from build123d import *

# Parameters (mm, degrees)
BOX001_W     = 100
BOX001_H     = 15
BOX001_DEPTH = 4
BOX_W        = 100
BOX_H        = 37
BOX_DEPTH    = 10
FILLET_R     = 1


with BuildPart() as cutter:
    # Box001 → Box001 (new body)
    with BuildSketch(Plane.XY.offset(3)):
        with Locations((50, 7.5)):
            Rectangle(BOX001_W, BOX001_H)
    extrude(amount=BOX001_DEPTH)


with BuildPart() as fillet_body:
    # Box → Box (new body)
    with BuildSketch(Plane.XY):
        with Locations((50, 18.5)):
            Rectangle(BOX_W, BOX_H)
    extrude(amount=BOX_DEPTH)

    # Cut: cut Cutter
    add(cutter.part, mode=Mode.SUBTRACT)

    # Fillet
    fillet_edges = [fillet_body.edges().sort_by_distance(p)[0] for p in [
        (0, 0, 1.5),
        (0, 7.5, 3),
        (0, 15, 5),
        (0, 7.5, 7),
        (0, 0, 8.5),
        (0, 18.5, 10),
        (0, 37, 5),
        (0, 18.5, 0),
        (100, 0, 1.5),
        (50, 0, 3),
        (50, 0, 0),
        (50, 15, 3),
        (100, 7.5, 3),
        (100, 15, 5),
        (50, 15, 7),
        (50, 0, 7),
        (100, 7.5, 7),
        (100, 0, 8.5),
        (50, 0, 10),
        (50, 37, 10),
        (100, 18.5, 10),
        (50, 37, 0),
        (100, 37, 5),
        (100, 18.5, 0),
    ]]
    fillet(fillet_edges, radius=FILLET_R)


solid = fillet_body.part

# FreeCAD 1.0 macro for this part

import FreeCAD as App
import Part
import Sketcher

V = App.Vector


def add_polygon(sketch, points):
    """Adds a closed chain of lines whose ends are joined by coincident constraints."""
    first, n = sketch.GeometryCount, len(points)
    for a, b in zip(points, points[1:] + points[:1]):
        sketch.addGeometry(Part.LineSegment(App.Vector(*a, 0), App.Vector(*b, 0)), False)
    for i in range(n):
        sketch.addConstraint(Sketcher.Constraint("Coincident", first + i, 2, first + (i + 1) % n, 1))

doc = App.newDocument("Part")
params = doc.addObject("Spreadsheet::Sheet", "Params")
for row, (alias, value) in enumerate([
    ("sketch1_width", "100 mm"),
    ("sketch1_height", "15 mm"),
    ("pad1_length", "4 mm"),
    ("sketch2_width", "100 mm"),
    ("sketch2_height", "37 mm"),
    ("pad2_length", "10 mm"),
    ("fillet_radius", "1 mm"),
], start=1):
    params.set(f"A{row}", alias)
    params.set(f"B{row}", "=" + value)
    params.setAlias(f"B{row}", alias)

body = doc.addObject("PartDesign::Body", "Body")

# Sketch on XY plane
sketch1 = body.newObject("Sketcher::SketchObject", "Sketch")
sketch1.AttachmentSupport = (doc.getObject("XY_Plane"), [""])
sketch1.MapMode = "FlatFace"
sketch1.AttachmentOffset = App.Placement(V(0, 0, 3), App.Rotation())
add_polygon(sketch1, [(0, 15), (0, 0), (100, 0), (100, 15)])  # lines 0-3
sketch1.addConstraint([
    Sketcher.Constraint("Vertical", 0),
    Sketcher.Constraint("Horizontal", 1),
    Sketcher.Constraint("Vertical", 2),
    Sketcher.Constraint("Horizontal", 3),
    Sketcher.Constraint("Coincident", 0, 2, -1, 1),
    Sketcher.Constraint("DistanceX", 1, 1, 1, 2, 100.0),
    Sketcher.Constraint("DistanceY", 0, 2, 0, 1, 15.0),
])
sketch1.setExpression("Constraints[9]", "Params.sketch1_width")
sketch1.setExpression("Constraints[10]", "Params.sketch1_height")
pad1 = body.newObject("PartDesign::Pad", "Pad")
pad1.Profile = sketch1
pad1.setExpression("Length", "Params.pad1_length")
body2 = doc.addObject("PartDesign::Body", "Body001")

# Sketch on XY plane
sketch2 = body2.newObject("Sketcher::SketchObject", "Sketch001")
sketch2.AttachmentSupport = (doc.getObject("XY_Plane001"), [""])
sketch2.MapMode = "FlatFace"
add_polygon(sketch2, [(0, 37), (0, 0), (100, 0), (100, 37)])  # lines 0-3
sketch2.addConstraint([
    Sketcher.Constraint("Vertical", 0),
    Sketcher.Constraint("Horizontal", 1),
    Sketcher.Constraint("Vertical", 2),
    Sketcher.Constraint("Horizontal", 3),
    Sketcher.Constraint("Coincident", 0, 2, -1, 1),
    Sketcher.Constraint("DistanceX", 1, 1, 1, 2, 100.0),
    Sketcher.Constraint("DistanceY", 0, 2, 0, 1, 37.0),
])
sketch2.setExpression("Constraints[9]", "Params.sketch2_width")
sketch2.setExpression("Constraints[10]", "Params.sketch2_height")
pad2 = body2.newObject("PartDesign::Pad", "Pad001")
pad2.Profile = sketch2
pad2.setExpression("Length", "Params.pad2_length")
doc.recompute()

boolean = body2.newObject("PartDesign::Boolean", "Boolean")
boolean.Type = "Cut"
boolean.addObjects([body])
doc.recompute()

fillet = body2.newObject("PartDesign::Fillet", "Fillet")
fillet.Base = (boolean, ["Edge1"])
fillet.UseAllEdges = True
fillet.setExpression("Radius", "Params.fillet_radius")

doc.recompute()
